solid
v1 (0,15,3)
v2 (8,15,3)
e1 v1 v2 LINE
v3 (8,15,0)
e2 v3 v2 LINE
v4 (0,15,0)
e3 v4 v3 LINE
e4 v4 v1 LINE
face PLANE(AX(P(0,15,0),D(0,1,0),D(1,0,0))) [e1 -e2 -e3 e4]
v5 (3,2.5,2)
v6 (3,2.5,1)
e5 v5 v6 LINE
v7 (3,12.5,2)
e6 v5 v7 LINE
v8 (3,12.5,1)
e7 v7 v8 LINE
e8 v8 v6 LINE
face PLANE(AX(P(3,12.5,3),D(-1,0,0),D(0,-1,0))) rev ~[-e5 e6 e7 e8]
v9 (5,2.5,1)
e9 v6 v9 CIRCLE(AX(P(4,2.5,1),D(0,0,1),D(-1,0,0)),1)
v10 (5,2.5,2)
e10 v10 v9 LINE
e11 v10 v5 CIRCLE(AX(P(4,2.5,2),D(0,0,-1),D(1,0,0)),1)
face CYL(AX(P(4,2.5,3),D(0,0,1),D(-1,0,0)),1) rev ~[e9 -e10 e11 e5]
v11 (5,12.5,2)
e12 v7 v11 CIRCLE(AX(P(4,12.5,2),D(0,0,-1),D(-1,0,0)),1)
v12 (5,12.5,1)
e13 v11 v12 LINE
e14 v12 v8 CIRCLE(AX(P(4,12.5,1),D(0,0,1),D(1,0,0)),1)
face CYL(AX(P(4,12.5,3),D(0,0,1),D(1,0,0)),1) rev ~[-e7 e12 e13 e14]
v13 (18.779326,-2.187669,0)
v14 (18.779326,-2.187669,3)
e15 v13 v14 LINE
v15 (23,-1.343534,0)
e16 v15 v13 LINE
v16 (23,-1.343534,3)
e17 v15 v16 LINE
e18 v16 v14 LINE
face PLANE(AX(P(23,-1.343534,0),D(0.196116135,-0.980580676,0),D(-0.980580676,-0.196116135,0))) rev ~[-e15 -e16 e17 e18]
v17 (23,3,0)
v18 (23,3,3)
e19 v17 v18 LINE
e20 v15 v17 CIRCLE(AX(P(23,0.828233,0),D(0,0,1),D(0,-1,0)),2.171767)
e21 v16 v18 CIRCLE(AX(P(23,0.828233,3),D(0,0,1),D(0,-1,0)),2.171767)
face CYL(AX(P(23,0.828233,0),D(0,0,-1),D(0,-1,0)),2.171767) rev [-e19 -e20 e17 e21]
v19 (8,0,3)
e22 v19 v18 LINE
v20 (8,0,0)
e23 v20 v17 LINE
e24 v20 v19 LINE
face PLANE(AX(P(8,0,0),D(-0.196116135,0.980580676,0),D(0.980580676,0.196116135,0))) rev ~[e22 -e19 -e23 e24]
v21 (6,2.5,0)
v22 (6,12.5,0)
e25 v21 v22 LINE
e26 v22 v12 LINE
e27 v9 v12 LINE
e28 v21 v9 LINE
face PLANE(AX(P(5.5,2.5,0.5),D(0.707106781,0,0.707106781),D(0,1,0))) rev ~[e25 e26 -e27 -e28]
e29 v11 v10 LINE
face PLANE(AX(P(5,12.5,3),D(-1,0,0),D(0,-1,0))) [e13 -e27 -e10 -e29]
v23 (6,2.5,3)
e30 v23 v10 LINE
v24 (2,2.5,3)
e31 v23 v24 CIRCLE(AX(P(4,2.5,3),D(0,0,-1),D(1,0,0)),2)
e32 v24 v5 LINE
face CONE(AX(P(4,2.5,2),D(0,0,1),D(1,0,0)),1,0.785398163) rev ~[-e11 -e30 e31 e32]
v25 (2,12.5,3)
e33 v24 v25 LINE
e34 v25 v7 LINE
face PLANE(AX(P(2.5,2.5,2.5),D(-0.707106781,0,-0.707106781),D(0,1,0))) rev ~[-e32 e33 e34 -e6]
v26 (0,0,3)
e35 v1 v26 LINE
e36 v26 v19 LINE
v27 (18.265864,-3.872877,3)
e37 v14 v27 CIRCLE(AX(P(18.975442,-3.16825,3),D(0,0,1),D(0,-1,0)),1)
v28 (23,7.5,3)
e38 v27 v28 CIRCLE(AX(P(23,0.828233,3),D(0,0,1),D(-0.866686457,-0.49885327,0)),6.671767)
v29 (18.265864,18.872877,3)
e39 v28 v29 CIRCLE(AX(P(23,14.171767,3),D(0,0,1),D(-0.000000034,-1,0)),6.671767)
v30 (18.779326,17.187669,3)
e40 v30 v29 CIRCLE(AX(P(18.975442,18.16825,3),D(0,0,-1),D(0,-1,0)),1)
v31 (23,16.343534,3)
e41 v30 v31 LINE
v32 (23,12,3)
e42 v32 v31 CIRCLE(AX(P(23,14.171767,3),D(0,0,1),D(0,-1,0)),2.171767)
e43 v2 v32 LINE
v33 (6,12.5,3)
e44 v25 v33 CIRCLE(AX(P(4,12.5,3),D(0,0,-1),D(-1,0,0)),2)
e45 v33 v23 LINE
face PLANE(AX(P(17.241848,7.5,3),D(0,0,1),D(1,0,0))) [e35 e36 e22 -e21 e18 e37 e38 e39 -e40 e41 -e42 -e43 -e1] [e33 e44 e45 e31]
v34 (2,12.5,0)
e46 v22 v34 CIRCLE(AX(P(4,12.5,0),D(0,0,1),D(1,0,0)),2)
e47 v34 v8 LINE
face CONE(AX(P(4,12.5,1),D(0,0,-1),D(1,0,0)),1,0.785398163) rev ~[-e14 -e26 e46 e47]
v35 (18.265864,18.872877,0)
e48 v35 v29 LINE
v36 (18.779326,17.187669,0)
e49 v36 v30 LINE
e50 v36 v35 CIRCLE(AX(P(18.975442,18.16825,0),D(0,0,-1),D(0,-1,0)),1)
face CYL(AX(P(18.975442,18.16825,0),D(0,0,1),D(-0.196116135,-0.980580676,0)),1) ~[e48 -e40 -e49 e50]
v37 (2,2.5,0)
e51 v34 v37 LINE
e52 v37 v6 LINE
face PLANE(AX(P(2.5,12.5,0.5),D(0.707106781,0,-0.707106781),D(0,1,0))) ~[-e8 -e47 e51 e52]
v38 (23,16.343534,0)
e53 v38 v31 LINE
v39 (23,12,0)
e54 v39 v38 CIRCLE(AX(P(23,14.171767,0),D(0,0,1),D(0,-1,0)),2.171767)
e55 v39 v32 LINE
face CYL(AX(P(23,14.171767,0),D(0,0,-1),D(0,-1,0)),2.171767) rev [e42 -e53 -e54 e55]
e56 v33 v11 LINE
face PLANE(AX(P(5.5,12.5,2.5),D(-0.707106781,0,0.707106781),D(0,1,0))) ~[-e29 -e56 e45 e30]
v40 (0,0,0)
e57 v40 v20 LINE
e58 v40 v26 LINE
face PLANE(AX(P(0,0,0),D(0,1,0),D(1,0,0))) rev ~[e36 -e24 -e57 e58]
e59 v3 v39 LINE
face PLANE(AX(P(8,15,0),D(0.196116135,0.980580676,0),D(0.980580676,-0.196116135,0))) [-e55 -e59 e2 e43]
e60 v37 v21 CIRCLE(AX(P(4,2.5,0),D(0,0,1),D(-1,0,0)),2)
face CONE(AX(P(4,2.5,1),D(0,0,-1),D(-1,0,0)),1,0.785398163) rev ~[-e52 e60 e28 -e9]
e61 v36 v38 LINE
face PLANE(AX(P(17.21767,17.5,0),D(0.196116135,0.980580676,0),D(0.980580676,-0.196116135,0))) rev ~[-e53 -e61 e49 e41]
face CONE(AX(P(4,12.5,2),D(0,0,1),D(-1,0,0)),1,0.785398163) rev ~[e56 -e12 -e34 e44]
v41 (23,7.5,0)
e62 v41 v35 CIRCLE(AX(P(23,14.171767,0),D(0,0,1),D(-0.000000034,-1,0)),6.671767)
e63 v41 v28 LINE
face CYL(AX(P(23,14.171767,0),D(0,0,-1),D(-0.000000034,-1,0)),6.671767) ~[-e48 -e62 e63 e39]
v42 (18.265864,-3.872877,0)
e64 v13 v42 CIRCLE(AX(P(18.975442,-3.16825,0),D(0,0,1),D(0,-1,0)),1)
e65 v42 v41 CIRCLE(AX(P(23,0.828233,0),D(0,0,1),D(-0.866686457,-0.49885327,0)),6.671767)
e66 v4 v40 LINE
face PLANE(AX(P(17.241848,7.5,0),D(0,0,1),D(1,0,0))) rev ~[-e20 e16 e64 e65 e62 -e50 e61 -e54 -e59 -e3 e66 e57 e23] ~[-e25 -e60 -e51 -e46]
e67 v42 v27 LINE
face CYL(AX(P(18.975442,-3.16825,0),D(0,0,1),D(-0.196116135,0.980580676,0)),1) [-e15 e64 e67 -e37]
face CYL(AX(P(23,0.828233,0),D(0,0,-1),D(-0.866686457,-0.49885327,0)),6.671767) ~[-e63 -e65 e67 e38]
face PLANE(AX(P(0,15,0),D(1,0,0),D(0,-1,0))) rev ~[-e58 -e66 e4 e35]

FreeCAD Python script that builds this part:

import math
import FreeCAD as App
import Part
import Sketcher
from FreeCAD import Vector


def edges_at(feature, points):
    """Names of the edges that pass closest to the given points."""
    edges = feature.Shape.Edges
    near = lambda p: min(range(len(edges)), key=lambda i: edges[i].distToShape(Part.Vertex(*p))[0])
    return sorted({f"Edge{near(p) + 1}" for p in points})

doc = App.newDocument("Part")
params = doc.addObject("Spreadsheet::Sheet", "Params")
for row, (alias, value) in enumerate([
    ("sketch1_width", "8 mm"),
    ("sketch1_height", "15 mm"),
    ("pad1_length", "3 mm"),
    ("sketch2_radius", "1 mm"),
    ("sketch2_height", "10 mm"),
    ("pocket1_length", "5 mm"),
    ("chamfer_size", "1 mm"),
    ("fillet_radius", "1 mm"),
], start=1):
    params.set(f"A{row}", alias)
    params.set(f"B{row}", "=" + value)
    params.setAlias(f"B{row}", alias)

body = doc.addObject("PartDesign::Body", "Body")

sketch1 = body.newObject("Sketcher::SketchObject", "Sketch")
sketch1.AttachmentSupport = (doc.getObject("XY_Plane"), [""])
sketch1.MapMode = "FlatFace"
sketch1.addGeometry([
    Part.LineSegment(Vector(0, 15, 0), Vector(0, 0, 0)),
    Part.LineSegment(Vector(0, 0, 0), Vector(8, 0, 0)),
    Part.LineSegment(Vector(8, 0, 0), Vector(23, 3, 0)),
    Part.ArcOfCircle(Part.Circle(Vector(23, 0.8, 0), Vector(0, 0, 1), 2.2), math.radians(-90), math.radians(90)),
    Part.LineSegment(Vector(23, -1.3, 0), Vector(17.2, -2.5, 0)),
    Part.ArcOfCircle(Part.Circle(Vector(23, 0.8, 0), Vector(0, 0, 1), 6.7), math.radians(-150), math.radians(90)),
    Part.ArcOfCircle(Part.Circle(Vector(23, 14.2, 0), Vector(0, 0, 1), 6.7), math.radians(-90), math.radians(150)),
    Part.LineSegment(Vector(17.2, 17.5, 0), Vector(23, 16.3, 0)),
    Part.ArcOfCircle(Part.Circle(Vector(23, 14.2, 0), Vector(0, 0, 1), 2.2), math.radians(-90), math.radians(90)),
    Part.LineSegment(Vector(23, 12, 0), Vector(8, 15, 0)),
    Part.LineSegment(Vector(8, 15, 0), Vector(0, 15, 0)),
], False)
sketch1.addConstraint([
    Sketcher.Constraint("Coincident", 0, 2, 1, 1),
    Sketcher.Constraint("Coincident", 1, 2, 2, 1),
    Sketcher.Constraint("Coincident", 2, 2, 3, 2),
    Sketcher.Constraint("Coincident", 3, 1, 4, 1),
    Sketcher.Constraint("Coincident", 4, 2, 5, 1),
    Sketcher.Constraint("Tangent", 5, 2, 6, 1),
    Sketcher.Constraint("Coincident", 6, 2, 7, 1),
    Sketcher.Constraint("Coincident", 7, 2, 8, 2),
    Sketcher.Constraint("Coincident", 8, 1, 9, 1),
    Sketcher.Constraint("Coincident", 9, 2, 10, 1),
    Sketcher.Constraint("Coincident", 10, 2, 0, 1),
    Sketcher.Constraint("Vertical", 0),
    Sketcher.Constraint("Horizontal", 1),
    Sketcher.Constraint("Horizontal", 10),
    Sketcher.Constraint("Coincident", 0, 2, -1, 1),
    Sketcher.Constraint("Coincident", 5, 3, 3, 3),
    Sketcher.Constraint("Coincident", 8, 3, 6, 3),
    Sketcher.Constraint("Equal", 5, 6),
    Sketcher.Constraint("Equal", 3, 8),
    Sketcher.Constraint("Parallel", 2, 4),
    Sketcher.Constraint("Parallel", 7, 9),
    Sketcher.Constraint("Vertical", 5, 3, 6, 3),
    Sketcher.Constraint("Vertical", 8, 3, 2, 2),
    Sketcher.Constraint("Vertical", 2, 2, 3, 1),
    Sketcher.Constraint("Vertical", 4, 2, 6, 2),
    Sketcher.Constraint("Vertical", 5, 2, 7, 2),
    Sketcher.Constraint("Vertical", 7, 2, 8, 1),
    Sketcher.Constraint("Vertical", 1, 2, 9, 2),
    Sketcher.Constraint("DistanceX", 1, 1, 1, 2, 8.0),
    Sketcher.Constraint("DistanceY", 0, 2, 0, 1, 15.0),
    Sketcher.Constraint("DistanceX", -1, 1, 3, 3, 23.0),
    Sketcher.Constraint("DistanceY", -1, 1, 2, 2, 3.0),
    Sketcher.Constraint("DistanceY", 5, 2, 6, 2, 10.0),
])
sketch1.setExpression("Constraints[28]", "Params.sketch1_width")
sketch1.setExpression("Constraints[29]", "Params.sketch1_height")
pad1 = body.newObject("PartDesign::Pad", "Pad")
pad1.Profile = sketch1
pad1.setExpression("Length", "Params.pad1_length")

sketch2 = body.newObject("Sketcher::SketchObject", "Sketch001")
sketch2.AttachmentSupport = (doc.getObject("XY_Plane"), [""])
sketch2.MapMode = "FlatFace"
sketch2.AttachmentOffset = App.Placement(Vector(0, 0, 3), App.Rotation())
sketch2.addGeometry([
    Part.ArcOfCircle(Part.Circle(Vector(4, 12.5, 0), Vector(0, 0, 1), 1), math.radians(0), math.radians(180)),
    Part.LineSegment(Vector(3, 12.5, 0), Vector(3, 2.5, 0)),
    Part.ArcOfCircle(Part.Circle(Vector(4, 2.5, 0), Vector(0, 0, 1), 1), math.radians(180), math.radians(360)),
    Part.LineSegment(Vector(5, 2.5, 0), Vector(5, 12.5, 0)),
], False)
sketch2.addConstraint([
    Sketcher.Constraint("Tangent", 0, 2, 1, 1),
    Sketcher.Constraint("Tangent", 1, 2, 2, 1),
    Sketcher.Constraint("Tangent", 2, 2, 3, 1),
    Sketcher.Constraint("Tangent", 3, 2, 0, 1),
    Sketcher.Constraint("Vertical", 1),
    Sketcher.Constraint("Vertical", 3),
    Sketcher.Constraint("Radius", 0, 1.0),
    Sketcher.Constraint("DistanceY", 1, 2, 1, 1, 10.0),
    Sketcher.Constraint("DistanceX", -1, 1, 0, 3, 4.0),
    Sketcher.Constraint("DistanceY", -1, 1, 0, 3, 12.5),
])
sketch2.setExpression("Constraints[6]", "Params.sketch2_radius")
sketch2.setExpression("Constraints[7]", "Params.sketch2_height")
pocket1 = body.newObject("PartDesign::Pocket", "Pocket")
pocket1.Profile = sketch2
pocket1.setExpression("Length", "Params.pocket1_length")
doc.recompute()

chamfer = body.newObject("PartDesign::Chamfer", "Chamfer")
chamfer.Base = (pocket1, edges_at(pocket1, [(3, 7.5, 0), (5, 7.5, 3)]))
chamfer.setExpression("Size", "Params.chamfer_size")
doc.recompute()

fillet = body.newObject("PartDesign::Fillet", "Fillet")
fillet.Base = (chamfer, edges_at(chamfer, [(17.218, -2.5, 1.5), (17.218, 17.5, 1.5)]))
fillet.setExpression("Radius", "Params.fillet_radius")

doc.recompute()
